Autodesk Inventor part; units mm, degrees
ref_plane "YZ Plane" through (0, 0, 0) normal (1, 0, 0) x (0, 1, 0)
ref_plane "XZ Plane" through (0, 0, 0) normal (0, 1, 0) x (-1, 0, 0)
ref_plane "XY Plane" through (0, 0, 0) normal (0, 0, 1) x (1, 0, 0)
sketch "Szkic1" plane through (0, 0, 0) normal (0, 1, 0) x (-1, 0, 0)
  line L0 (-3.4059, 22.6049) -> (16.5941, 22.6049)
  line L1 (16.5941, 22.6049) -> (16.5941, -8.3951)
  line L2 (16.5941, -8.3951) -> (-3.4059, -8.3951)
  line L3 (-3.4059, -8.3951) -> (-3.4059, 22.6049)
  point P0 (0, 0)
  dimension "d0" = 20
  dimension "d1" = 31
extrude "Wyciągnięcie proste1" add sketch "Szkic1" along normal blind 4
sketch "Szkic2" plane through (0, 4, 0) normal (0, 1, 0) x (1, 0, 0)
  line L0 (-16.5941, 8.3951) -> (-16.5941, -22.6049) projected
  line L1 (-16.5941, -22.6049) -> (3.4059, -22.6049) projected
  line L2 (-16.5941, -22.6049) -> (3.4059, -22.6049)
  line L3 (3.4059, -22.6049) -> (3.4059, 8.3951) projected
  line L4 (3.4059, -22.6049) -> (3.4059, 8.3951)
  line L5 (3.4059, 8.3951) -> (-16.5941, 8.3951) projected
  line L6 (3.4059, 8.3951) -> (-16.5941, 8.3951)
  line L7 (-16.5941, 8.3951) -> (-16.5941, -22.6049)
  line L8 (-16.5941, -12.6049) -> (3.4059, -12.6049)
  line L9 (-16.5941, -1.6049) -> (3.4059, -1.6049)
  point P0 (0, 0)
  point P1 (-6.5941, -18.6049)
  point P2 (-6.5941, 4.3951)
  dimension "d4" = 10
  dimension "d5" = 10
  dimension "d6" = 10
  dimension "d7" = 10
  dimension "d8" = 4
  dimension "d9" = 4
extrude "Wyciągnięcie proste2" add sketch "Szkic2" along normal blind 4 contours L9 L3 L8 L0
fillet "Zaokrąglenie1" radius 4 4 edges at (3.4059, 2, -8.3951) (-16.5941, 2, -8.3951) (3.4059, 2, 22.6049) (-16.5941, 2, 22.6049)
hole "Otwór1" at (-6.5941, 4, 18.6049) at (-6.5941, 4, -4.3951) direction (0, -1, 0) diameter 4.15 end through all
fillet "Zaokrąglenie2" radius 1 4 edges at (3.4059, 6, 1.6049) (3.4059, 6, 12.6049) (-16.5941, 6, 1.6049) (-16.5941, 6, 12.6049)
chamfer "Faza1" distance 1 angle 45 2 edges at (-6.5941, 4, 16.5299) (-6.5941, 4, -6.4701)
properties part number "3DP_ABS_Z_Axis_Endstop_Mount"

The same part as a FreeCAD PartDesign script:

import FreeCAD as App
import Part
import Sketcher

V = App.Vector


def edges_at(feature, points):
    """Names of the edges that pass closest to the given points."""
    edges = feature.Shape.Edges
    near = lambda p: min(range(len(edges)), key=lambda i: edges[i].distToShape(Part.Vertex(*p))[0])
    return sorted({f"Edge{near(p) + 1}" for p in points})


def add_polygon(sketch, points):
    """Adds a closed chain of lines whose ends are joined by coincident constraints."""
    first, n = sketch.GeometryCount, len(points)
    for a, b in zip(points, points[1:] + points[:1]):
        sketch.addGeometry(Part.LineSegment(App.Vector(*a, 0), App.Vector(*b, 0)), False)
    for i in range(n):
        sketch.addConstraint(Sketcher.Constraint("Coincident", first + i, 2, first + (i + 1) % n, 1))

doc = App.newDocument("Part")
body = doc.addObject("PartDesign::Body", "Body")

# Sketch on XZ plane
sketch1 = body.newObject("Sketcher::SketchObject", "Sketch")
sketch1.AttachmentSupport = (doc.getObject("XZ_Plane"), [""])
sketch1.MapMode = "FlatFace"
add_polygon(sketch1, [(-16.5941, 22.6049), (3.4059, 22.6049), (3.4059, -8.3951), (-16.5941, -8.3951)])  # lines 0-3
sketch1.addConstraint([
    Sketcher.Constraint("Horizontal", 0),
    Sketcher.Constraint("Vertical", 1),
    Sketcher.Constraint("Horizontal", 2),
    Sketcher.Constraint("Vertical", 3),
    Sketcher.Constraint("DistanceX", 0, 1, 0, 2, 20.0),
    Sketcher.Constraint("DistanceY", 1, 2, 1, 1, 31.0),
    Sketcher.Constraint("DistanceX", -1, 1, 0, 2, 3.406),
    Sketcher.Constraint("DistanceY", -1, 1, 0, 2, 22.605),
])
pad1 = body.newObject("PartDesign::Pad", "Pad")
pad1.Profile = sketch1
pad1.Length = 4
pad1.Reversed = True

# Sketch on XZ plane
sketch2 = body.newObject("Sketcher::SketchObject", "Sketch001")
sketch2.AttachmentSupport = (doc.getObject("XZ_Plane"), [""])
sketch2.MapMode = "FlatFace"
sketch2.AttachmentOffset = App.Placement(V(0, 0, -4), App.Rotation())
add_polygon(sketch2, [(3.4059, 1.6049), (-16.5941, 1.6049), (-16.5941, 12.6049), (3.4059, 12.6049)])  # lines 0-3
sketch2.addConstraint([
    Sketcher.Constraint("Horizontal", 0),
    Sketcher.Constraint("Vertical", 1),
    Sketcher.Constraint("Horizontal", 2),
    Sketcher.Constraint("Vertical", 3),
    Sketcher.Constraint("DistanceX", 0, 2, 0, 1, 20.0),
    Sketcher.Constraint("DistanceY", 1, 1, 1, 2, 11.0),
    Sketcher.Constraint("DistanceX", 0, 2, -1, 1, 16.594),
    Sketcher.Constraint("DistanceY", -1, 1, 0, 2, 1.605),
])
pad2 = body.newObject("PartDesign::Pad", "Pad001")
pad2.Profile = sketch2
pad2.Length = 4
pad2.Reversed = True
doc.recompute()

fillet = body.newObject("PartDesign::Fillet", "Fillet")
fillet.Base = (pad2, edges_at(pad2, [
    (3.406, 2, -8.395),
    (-16.594, 2, -8.395),
    (3.406, 2, 22.605),
    (-16.594, 2, 22.605),
]))
fillet.Radius = 4

# Sketch on XZ plane
sketch3 = body.newObject("Sketcher::SketchObject", "Sketch002")
sketch3.AttachmentSupport = (doc.getObject("XZ_Plane"), [""])
sketch3.MapMode = "FlatFace"
sketch3.AttachmentOffset = App.Placement(V(0, 0, -4), App.Rotation())
sketch3.addGeometry([
    Part.Circle(V(-6.5941, 18.6049, 0), V(0, 0, 1), 2.075),
    Part.Circle(V(-6.5941, -4.3951, 0), V(0, 0, 1), 2.075),
], False)
sketch3.addConstraint([
    Sketcher.Constraint("Equal", 0, 1),
    Sketcher.Constraint("Vertical", 0, 3, 1, 3),
    Sketcher.Constraint("Diameter", 0, 4.15),
    Sketcher.Constraint("DistanceY", 1, 3, 0, 3, 23.0),
    Sketcher.Constraint("DistanceX", 0, 3, -1, 1, 6.594),
    Sketcher.Constraint("DistanceY", -1, 1, 0, 3, 18.605),
])
doc.recompute()
hole = body.newObject("PartDesign::Hole", "Hole")
hole.Profile = sketch3
hole.ThreadType = "None"
hole.Diameter = 4.15
hole.DepthType = "ThroughAll"
hole.Reversed = True
doc.recompute()

fillet2 = body.newObject("PartDesign::Fillet", "Fillet001")
fillet2.Base = (hole, edges_at(hole, [
    (3.406, 6, 1.605),
    (3.406, 6, 12.605),
    (-16.594, 6, 1.605),
    (-16.594, 6, 12.605),
]))
fillet2.Radius = 1
doc.recompute()

chamfer = body.newObject("PartDesign::Chamfer", "Chamfer")
chamfer.Base = (fillet2, edges_at(fillet2, [(-6.594, 4, 16.53), (-6.594, 4, -6.47)]))
chamfer.Size = 1

doc.recompute()
